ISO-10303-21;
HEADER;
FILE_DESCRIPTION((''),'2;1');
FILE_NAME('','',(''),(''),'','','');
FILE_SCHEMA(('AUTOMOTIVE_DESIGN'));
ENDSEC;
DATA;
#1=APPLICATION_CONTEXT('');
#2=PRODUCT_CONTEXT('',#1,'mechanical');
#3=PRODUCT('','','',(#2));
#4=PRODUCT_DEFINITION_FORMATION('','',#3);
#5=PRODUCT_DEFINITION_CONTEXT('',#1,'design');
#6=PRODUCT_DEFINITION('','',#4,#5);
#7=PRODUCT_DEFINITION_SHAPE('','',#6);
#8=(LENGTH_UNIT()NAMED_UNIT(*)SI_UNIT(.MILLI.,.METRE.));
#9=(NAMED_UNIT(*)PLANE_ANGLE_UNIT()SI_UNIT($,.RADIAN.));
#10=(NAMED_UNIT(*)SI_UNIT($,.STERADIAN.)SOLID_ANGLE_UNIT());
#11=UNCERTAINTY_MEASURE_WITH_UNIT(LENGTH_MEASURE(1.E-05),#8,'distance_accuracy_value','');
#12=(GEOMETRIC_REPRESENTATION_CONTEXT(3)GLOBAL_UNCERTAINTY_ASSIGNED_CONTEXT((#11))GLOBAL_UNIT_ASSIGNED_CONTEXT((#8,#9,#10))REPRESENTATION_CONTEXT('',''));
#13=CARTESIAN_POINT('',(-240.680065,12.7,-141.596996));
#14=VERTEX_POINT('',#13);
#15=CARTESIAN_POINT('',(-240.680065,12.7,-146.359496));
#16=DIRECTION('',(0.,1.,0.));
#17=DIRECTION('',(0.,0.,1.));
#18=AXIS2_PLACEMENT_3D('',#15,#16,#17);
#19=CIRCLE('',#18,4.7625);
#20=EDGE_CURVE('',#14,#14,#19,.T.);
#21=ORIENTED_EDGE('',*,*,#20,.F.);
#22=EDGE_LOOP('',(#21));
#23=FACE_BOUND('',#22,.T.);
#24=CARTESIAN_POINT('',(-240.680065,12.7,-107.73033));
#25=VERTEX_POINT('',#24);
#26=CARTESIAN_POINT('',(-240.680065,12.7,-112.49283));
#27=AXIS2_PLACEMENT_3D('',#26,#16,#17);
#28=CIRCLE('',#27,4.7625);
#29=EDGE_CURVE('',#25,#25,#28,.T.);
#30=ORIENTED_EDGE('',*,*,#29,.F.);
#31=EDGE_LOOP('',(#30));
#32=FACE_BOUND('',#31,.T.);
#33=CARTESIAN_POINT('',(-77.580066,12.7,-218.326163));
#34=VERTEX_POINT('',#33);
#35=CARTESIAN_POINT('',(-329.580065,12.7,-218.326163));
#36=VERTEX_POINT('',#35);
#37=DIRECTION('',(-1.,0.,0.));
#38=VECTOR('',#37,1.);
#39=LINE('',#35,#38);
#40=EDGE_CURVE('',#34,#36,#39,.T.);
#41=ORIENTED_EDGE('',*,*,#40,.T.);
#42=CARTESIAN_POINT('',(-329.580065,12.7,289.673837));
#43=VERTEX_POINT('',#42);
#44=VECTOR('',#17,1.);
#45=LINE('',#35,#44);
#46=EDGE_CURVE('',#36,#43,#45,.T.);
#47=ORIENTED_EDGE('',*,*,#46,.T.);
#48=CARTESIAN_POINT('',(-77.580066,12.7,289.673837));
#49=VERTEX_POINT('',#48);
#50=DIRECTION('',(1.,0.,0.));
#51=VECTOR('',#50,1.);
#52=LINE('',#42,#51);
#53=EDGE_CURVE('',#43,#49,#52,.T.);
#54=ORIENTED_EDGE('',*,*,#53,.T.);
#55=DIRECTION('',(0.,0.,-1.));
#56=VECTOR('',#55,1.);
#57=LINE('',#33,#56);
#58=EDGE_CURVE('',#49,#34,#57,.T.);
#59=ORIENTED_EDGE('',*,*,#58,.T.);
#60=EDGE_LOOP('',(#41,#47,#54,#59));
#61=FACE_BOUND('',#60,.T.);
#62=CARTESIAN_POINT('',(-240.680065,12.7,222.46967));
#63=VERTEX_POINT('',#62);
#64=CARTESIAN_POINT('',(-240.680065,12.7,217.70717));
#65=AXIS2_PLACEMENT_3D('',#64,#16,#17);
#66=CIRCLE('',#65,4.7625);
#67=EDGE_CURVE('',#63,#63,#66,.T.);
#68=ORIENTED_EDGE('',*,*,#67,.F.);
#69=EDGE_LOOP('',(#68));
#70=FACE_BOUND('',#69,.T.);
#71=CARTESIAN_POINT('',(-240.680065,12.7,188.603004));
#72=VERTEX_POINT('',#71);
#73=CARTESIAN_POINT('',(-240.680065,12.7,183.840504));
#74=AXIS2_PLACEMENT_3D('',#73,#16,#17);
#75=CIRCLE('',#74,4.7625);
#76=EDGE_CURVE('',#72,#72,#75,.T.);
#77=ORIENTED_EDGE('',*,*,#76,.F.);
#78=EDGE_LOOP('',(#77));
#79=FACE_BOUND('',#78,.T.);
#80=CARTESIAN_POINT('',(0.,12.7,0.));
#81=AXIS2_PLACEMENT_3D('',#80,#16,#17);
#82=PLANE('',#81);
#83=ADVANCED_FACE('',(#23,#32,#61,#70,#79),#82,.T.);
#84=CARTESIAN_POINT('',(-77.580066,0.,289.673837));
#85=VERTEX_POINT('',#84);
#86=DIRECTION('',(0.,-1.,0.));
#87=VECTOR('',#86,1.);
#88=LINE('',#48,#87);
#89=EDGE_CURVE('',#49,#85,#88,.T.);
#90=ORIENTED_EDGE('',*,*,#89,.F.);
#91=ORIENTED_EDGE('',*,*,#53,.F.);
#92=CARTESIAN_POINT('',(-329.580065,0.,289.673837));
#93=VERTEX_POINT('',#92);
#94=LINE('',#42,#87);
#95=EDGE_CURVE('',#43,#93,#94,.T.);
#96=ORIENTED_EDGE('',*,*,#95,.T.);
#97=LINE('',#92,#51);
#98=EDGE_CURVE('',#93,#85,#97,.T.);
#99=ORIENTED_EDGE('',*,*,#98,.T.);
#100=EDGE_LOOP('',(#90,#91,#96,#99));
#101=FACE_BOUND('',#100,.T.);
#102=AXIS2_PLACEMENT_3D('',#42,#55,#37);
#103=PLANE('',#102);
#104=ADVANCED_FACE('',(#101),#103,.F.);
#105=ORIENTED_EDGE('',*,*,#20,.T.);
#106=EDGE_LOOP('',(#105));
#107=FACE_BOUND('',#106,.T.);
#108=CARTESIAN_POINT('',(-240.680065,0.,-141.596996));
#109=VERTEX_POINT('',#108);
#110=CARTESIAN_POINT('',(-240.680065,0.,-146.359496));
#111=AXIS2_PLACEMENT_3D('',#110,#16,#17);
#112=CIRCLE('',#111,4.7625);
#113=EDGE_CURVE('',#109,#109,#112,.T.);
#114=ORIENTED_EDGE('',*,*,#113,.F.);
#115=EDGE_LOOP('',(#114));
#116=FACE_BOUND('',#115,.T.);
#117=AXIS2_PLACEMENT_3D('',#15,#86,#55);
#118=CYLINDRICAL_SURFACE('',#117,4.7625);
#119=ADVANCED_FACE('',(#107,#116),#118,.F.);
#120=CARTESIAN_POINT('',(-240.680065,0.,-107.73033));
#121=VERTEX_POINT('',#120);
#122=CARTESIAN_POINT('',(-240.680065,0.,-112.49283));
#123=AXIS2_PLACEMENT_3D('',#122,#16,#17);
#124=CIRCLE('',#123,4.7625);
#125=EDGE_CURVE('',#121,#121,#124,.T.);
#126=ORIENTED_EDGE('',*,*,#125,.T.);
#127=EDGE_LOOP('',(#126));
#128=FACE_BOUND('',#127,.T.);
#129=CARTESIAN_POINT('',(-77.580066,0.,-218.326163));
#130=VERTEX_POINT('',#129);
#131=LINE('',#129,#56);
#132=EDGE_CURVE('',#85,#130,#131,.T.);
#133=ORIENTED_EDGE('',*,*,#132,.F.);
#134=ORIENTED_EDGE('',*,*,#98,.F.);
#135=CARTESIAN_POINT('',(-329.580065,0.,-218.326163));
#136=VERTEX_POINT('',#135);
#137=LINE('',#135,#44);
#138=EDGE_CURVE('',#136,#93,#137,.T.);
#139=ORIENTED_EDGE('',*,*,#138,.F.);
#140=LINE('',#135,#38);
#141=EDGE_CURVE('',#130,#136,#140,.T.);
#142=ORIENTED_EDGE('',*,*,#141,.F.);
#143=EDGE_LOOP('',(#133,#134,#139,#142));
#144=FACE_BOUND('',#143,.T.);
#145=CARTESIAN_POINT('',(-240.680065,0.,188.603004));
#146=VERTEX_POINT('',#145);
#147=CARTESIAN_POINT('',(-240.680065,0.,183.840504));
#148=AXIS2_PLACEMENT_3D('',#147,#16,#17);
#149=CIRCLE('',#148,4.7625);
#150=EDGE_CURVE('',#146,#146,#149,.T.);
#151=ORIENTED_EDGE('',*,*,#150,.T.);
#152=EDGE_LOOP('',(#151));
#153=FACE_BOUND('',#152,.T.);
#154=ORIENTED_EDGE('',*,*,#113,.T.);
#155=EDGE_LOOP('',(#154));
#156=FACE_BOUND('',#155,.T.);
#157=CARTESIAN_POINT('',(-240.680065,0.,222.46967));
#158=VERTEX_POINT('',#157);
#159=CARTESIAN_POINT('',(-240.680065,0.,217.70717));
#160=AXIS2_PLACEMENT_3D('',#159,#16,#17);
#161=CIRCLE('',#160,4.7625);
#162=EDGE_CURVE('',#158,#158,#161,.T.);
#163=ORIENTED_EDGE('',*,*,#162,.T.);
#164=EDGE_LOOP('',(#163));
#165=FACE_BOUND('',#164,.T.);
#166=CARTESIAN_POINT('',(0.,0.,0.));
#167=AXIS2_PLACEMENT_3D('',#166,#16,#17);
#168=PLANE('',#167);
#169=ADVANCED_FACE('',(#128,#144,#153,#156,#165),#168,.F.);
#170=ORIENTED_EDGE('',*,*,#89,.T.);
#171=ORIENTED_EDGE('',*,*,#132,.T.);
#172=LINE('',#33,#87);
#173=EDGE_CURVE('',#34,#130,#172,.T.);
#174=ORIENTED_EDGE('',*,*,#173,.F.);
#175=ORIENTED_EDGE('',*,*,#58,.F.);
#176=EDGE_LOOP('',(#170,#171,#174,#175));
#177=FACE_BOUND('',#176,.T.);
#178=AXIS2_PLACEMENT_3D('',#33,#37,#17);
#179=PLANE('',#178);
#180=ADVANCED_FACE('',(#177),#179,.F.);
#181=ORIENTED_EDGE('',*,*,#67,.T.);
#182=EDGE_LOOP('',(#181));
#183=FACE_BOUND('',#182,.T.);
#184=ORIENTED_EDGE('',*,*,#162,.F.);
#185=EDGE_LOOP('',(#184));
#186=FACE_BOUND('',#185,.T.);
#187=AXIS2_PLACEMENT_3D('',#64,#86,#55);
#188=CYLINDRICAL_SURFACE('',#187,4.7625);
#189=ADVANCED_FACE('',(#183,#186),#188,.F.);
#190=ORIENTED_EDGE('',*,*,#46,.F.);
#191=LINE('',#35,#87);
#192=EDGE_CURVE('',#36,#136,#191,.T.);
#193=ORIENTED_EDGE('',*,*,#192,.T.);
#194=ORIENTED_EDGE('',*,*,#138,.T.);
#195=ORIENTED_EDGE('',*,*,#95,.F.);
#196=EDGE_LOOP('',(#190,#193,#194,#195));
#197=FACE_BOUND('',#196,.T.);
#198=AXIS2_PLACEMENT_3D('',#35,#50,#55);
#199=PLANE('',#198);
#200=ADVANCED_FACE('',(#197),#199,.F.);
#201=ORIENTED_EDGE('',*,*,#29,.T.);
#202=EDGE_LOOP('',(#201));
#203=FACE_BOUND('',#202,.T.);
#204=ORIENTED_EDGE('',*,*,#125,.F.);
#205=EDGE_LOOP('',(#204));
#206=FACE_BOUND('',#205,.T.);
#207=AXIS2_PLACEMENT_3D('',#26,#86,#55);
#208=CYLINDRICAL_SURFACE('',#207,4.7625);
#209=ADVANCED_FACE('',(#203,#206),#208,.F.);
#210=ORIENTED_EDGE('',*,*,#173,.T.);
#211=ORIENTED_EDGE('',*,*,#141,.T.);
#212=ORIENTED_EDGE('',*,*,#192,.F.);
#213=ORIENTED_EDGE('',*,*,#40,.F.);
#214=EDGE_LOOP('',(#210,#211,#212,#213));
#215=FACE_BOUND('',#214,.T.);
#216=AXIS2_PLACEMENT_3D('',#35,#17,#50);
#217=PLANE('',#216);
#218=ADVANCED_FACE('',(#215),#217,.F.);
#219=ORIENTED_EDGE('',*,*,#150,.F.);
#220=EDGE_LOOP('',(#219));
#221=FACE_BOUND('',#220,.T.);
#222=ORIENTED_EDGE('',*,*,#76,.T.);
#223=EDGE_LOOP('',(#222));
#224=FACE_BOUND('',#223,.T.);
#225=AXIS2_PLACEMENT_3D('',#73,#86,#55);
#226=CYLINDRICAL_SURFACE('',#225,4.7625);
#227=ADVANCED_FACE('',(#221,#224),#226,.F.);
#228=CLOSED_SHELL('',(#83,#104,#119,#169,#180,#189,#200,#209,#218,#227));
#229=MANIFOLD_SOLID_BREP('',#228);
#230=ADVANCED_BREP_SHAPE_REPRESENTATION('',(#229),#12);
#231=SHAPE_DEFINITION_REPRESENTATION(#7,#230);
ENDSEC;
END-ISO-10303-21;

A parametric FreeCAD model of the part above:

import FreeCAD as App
import Part
import Sketcher
from FreeCAD import Vector
Q = App.Units.Quantity

doc = App.newDocument("Part")
params = doc.addObject("Spreadsheet::Sheet", "Params")
for row, (alias, value) in enumerate([
    ("sketch1_height", "20 in"),
    ("sketch1_diameter", "0.375 in"),
    ("pad1_length", "0.5 in"),
], start=1):
    params.set(f"A{row}", alias)
    params.set(f"B{row}", "=" + value)
    params.setAlias(f"B{row}", alias)

body = doc.addObject("PartDesign::Body", "Body")

# Sketch on XZ plane
sketch1 = doc.addObject("Sketcher::SketchObject", "Sketch")
body.addObject(sketch1)
sketch1.AttachmentSupport = (doc.XZ_Plane, [""])
sketch1.MapMode = "FlatFace"
sketch1.addGeometry(Part.LineSegment(Vector(-329.580065, -218.326163, 0), Vector(-329.580065, 289.673837, 0)), False)
sketch1.addGeometry(Part.LineSegment(Vector(-329.580065, 289.673837, 0), Vector(-77.580066, 289.673837, 0)), False)
sketch1.addGeometry(Part.LineSegment(Vector(-77.580066, 289.673837, 0), Vector(-77.580066, -218.326163, 0)), False)
sketch1.addGeometry(Part.LineSegment(Vector(-77.580066, -218.326163, 0), Vector(-329.580065, -218.326163, 0)), False)
sketch1.addGeometry(Part.Circle(Vector(-240.680065, 217.70717, 0), Vector(0, 0, 1), 4.7625), False)
sketch1.addGeometry(Part.Circle(Vector(-240.680065, 183.840504, 0), Vector(0, 0, 1), 4.7625), False)
sketch1.addGeometry(Part.Circle(Vector(-240.680065, -112.49283, 0), Vector(0, 0, 1), 4.7625), False)
sketch1.addGeometry(Part.Circle(Vector(-240.680065, -146.359496, 0), Vector(0, 0, 1), 4.7625), False)
sketch1.addConstraint(Sketcher.Constraint("Coincident", 0, 2, 1, 1))
sketch1.addConstraint(Sketcher.Constraint("Coincident", 1, 2, 2, 1))
sketch1.addConstraint(Sketcher.Constraint("Coincident", 2, 2, 3, 1))
sketch1.addConstraint(Sketcher.Constraint("Coincident", 3, 2, 0, 1))
sketch1.addConstraint(Sketcher.Constraint("Vertical", 0))
sketch1.addConstraint(Sketcher.Constraint("Horizontal", 1))
sketch1.addConstraint(Sketcher.Constraint("Vertical", 2))
sketch1.addConstraint(Sketcher.Constraint("Horizontal", 3))
sketch1.addConstraint(Sketcher.Constraint("Equal", 4, 5))
sketch1.addConstraint(Sketcher.Constraint("Equal", 5, 6))
sketch1.addConstraint(Sketcher.Constraint("Equal", 6, 7))
sketch1.addConstraint(Sketcher.Constraint("Vertical", 4, 3, 5, 3))
sketch1.addConstraint(Sketcher.Constraint("Vertical", 5, 3, 6, 3))
sketch1.addConstraint(Sketcher.Constraint("Vertical", 6, 3, 7, 3))
sketch1.addConstraint(Sketcher.Constraint("DistanceY", 0, 1, 0, 2, Q("20 in")))
sketch1.addConstraint(Sketcher.Constraint("Diameter", 4, Q("0.375 in")))
sketch1.addConstraint(Sketcher.Constraint("DistanceY", 6, 3, 4, 3, Q("13 in")))
sketch1.addConstraint(Sketcher.Constraint("DistanceY", 7, 3, 5, 3, Q("13 in")))
sketch1.addConstraint(Sketcher.Constraint("DistanceX", 0, 2, 4, 3, Q("3.5 in")))
sketch1.addConstraint(Sketcher.Constraint("DistanceX", 1, 1, 1, 2, 251.999999))
sketch1.addConstraint(Sketcher.Constraint("DistanceY", -1, 1, 4, 3, 217.70717))
sketch1.addConstraint(Sketcher.Constraint("DistanceX", 4, 3, -1, 1, 240.680065))
sketch1.addConstraint(Sketcher.Constraint("DistanceY", -1, 1, 5, 3, 183.840504))
sketch1.addConstraint(Sketcher.Constraint("DistanceY", -1, 1, 0, 2, 289.673837))
sketch1.setExpression("Constraints[14]", "Params.sketch1_height")
sketch1.setExpression("Constraints[15]", "Params.sketch1_diameter")
pad1 = doc.addObject("PartDesign::Pad", "Pad")
body.addObject(pad1)
pad1.Profile = sketch1
pad1.setExpression("Length", "Params.pad1_length")
pad1.Reversed = True

doc.recompute()
